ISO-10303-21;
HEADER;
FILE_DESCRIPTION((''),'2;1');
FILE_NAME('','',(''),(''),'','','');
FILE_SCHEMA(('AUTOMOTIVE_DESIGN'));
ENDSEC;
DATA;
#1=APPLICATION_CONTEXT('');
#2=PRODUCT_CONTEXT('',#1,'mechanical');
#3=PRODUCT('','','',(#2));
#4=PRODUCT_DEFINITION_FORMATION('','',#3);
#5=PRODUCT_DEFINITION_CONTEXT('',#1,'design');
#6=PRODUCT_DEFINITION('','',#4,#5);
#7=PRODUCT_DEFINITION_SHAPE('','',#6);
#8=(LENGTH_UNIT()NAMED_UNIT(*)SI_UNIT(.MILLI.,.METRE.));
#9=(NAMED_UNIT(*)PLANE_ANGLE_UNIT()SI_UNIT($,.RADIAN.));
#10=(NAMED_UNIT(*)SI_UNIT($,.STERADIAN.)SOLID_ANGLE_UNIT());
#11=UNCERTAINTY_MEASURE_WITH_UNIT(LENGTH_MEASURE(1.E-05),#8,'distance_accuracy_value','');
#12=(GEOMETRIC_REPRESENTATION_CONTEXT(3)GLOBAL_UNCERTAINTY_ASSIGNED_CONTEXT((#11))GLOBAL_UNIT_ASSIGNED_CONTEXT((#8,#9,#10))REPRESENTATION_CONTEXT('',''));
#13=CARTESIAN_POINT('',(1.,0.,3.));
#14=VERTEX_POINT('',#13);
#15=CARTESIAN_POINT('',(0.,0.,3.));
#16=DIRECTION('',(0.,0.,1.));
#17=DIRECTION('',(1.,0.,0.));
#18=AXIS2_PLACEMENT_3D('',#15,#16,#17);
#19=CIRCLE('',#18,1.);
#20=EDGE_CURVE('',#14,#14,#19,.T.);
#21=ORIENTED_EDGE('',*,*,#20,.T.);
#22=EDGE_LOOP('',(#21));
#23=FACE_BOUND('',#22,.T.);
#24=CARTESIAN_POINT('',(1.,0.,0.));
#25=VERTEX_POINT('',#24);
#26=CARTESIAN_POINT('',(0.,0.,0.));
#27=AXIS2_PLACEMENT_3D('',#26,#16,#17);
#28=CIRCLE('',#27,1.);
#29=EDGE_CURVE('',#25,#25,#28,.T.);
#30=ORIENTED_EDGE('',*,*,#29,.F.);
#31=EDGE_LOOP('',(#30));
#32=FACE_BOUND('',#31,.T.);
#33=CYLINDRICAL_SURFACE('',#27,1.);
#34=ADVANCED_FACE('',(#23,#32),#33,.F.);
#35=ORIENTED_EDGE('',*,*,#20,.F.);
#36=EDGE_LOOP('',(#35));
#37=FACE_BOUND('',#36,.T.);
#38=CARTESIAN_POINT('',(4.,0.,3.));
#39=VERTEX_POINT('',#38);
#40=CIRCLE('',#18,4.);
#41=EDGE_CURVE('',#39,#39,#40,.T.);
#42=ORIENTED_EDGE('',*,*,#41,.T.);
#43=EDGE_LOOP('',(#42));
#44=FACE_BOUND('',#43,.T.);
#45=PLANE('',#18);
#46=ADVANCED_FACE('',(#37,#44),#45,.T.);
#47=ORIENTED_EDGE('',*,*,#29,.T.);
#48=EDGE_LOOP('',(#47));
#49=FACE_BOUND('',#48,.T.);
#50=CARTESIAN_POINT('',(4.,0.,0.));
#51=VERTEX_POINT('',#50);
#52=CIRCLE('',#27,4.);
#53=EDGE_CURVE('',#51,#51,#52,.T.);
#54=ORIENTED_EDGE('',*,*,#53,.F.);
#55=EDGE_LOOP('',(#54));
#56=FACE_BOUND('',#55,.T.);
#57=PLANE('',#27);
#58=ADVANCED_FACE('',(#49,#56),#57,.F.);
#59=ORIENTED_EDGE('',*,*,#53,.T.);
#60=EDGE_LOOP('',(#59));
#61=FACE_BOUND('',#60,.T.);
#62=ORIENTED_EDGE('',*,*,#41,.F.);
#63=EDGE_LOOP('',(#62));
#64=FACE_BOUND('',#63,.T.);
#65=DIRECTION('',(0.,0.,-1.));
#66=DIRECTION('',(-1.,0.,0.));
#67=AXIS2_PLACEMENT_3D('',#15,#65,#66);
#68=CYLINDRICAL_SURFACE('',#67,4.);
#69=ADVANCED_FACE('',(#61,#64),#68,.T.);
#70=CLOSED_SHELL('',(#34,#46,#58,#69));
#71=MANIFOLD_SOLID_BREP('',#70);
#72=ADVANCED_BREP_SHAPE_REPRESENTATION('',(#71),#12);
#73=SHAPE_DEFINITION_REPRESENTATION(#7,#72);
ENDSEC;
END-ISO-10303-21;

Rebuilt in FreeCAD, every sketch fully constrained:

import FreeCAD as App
import Part
import Sketcher

V = App.Vector
Q = App.Units.Quantity

doc = App.newDocument("Part")
params = doc.addObject("Spreadsheet::Sheet", "Params")
for row, (alias, value) in enumerate([
    ("sketch1_diameter", "8 mm"),
    ("pad1_length", "3 mm"),
    ("sketch2_diameter", "2 mm"),
    ("pocket1_length", "3 mm"),
], start=1):
    params.set(f"A{row}", alias)
    params.set(f"B{row}", "=" + value)
    params.setAlias(f"B{row}", alias)

body = doc.addObject("PartDesign::Body", "Body")

sketch1 = body.newObject("Sketcher::SketchObject", "Sketch")
sketch1.AttachmentSupport = (doc.getObject("XY_Plane"), [""])
sketch1.MapMode = "FlatFace"
sketch1.addGeometry(Part.Circle(V(0, 0, 0), V(0, 0, 1), 4), False)
sketch1.addConstraint(Sketcher.Constraint("Coincident", 0, 3, -1, 1))
sketch1.addConstraint(Sketcher.Constraint("Diameter", 0, Q("8 mm")))
sketch1.setExpression("Constraints[1]", "Params.sketch1_diameter")
pad1 = body.newObject("PartDesign::Pad", "Pad")
pad1.Profile = sketch1
pad1.setExpression("Length", "Params.pad1_length")

sketch2 = body.newObject("Sketcher::SketchObject", "Sketch001")
sketch2.AttachmentSupport = (doc.getObject("XY_Plane"), [""])
sketch2.MapMode = "FlatFace"
sketch2.AttachmentOffset = App.Placement(V(0, 0, 3), App.Rotation())
sketch2.addGeometry(Part.Circle(V(0, 0, 0), V(0, 0, 1), 1), False)
sketch2.addConstraint(Sketcher.Constraint("Coincident", 0, 3, -1, 1))
sketch2.addConstraint(Sketcher.Constraint("Diameter", 0, Q("2 mm")))
sketch2.setExpression("Constraints[1]", "Params.sketch2_diameter")
pocket1 = body.newObject("PartDesign::Pocket", "Pocket")
pocket1.Profile = sketch2
pocket1.setExpression("Length", "Params.pocket1_length")

doc.recompute()
